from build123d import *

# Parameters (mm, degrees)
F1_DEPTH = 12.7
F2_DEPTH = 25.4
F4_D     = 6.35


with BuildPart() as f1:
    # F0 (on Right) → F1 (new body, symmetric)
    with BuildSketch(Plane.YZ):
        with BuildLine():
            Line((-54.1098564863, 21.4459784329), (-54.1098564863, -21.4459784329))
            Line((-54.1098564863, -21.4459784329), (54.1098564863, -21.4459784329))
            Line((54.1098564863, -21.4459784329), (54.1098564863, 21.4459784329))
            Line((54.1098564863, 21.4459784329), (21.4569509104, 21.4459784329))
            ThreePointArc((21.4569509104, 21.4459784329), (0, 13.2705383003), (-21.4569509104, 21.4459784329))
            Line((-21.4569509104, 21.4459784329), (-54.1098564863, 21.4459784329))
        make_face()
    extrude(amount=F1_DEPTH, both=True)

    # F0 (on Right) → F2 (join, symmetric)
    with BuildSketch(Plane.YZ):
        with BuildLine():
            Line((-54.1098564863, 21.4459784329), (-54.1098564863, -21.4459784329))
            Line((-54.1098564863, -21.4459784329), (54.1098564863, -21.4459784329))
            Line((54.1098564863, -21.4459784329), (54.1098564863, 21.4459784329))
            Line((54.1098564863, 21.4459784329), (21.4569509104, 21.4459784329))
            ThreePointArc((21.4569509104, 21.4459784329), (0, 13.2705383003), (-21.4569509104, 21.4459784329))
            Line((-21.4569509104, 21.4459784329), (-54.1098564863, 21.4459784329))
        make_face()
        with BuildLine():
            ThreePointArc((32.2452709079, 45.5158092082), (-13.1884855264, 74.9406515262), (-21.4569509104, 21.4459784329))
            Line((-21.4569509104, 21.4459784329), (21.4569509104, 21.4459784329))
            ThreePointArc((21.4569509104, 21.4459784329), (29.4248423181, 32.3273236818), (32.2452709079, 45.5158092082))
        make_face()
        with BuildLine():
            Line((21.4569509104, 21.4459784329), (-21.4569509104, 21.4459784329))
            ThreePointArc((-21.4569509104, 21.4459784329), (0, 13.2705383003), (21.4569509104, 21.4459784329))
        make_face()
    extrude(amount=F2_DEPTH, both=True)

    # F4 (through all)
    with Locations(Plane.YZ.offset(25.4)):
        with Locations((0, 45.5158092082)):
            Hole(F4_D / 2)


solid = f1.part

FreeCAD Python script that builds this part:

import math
import FreeCAD as App
import Part
import Sketcher

V = App.Vector
Q = App.Units.Quantity

doc = App.newDocument("Part")
params = doc.addObject("Spreadsheet::Sheet", "Params")
for row, (alias, value) in enumerate([
    ("pad1_length", "1 in"),
    ("pad2_length", "2 in"),
    ("sketch3_diameter", "0.25 in"),
    ("hole_diameter", "0.25 in"),
], start=1):
    params.set(f"A{row}", alias)
    params.set(f"B{row}", "=" + value)
    params.setAlias(f"B{row}", alias)

body = doc.addObject("PartDesign::Body", "Body")

# Sketch on YZ plane
sketch1 = body.newObject("Sketcher::SketchObject", "Sketch")
sketch1.AttachmentSupport = (doc.getObject("YZ_Plane"), [""])
sketch1.MapMode = "FlatFace"
sketch1.addGeometry([
    Part.LineSegment(V(-54.109856, 21.445978, 0), V(-54.109856, -21.445978, 0)),  # 0
    Part.LineSegment(V(-54.109856, -21.445978, 0), V(54.109856, -21.445978, 0)),  # 1
    Part.LineSegment(V(54.109856, -21.445978, 0), V(54.109856, 21.445978, 0)),  # 2
    Part.LineSegment(V(54.109856, 21.445978, 0), V(21.456951, 21.445978, 0)),  # 3
    Part.ArcOfCircle(Part.Circle(V(0, 45.515809, 0), V(0, 0, 1), 32.245271), math.radians(-131.715275), math.radians(-48.284725)),  # 4
    Part.LineSegment(V(-21.456951, 21.445978, 0), V(-54.109856, 21.445978, 0)),  # 5
], False)
sketch1.addConstraint([
    Sketcher.Constraint("Coincident", 0, 2, 1, 1),
    Sketcher.Constraint("Coincident", 1, 2, 2, 1),
    Sketcher.Constraint("Coincident", 2, 2, 3, 1),
    Sketcher.Constraint("Coincident", 3, 2, 4, 2),
    Sketcher.Constraint("Coincident", 4, 1, 5, 1),
    Sketcher.Constraint("Coincident", 5, 2, 0, 1),
    Sketcher.Constraint("Vertical", 0),
    Sketcher.Constraint("Horizontal", 1),
    Sketcher.Constraint("Vertical", 2),
    Sketcher.Constraint("Horizontal", 3),
    Sketcher.Constraint("Horizontal", 5),
    Sketcher.Constraint("Symmetric", 0, 2, 2, 2, -1, 1),
    Sketcher.Constraint("Symmetric", 3, 2, 4, 1, -2),
    Sketcher.Constraint("Radius", 4, 32.245271),
    Sketcher.Constraint("DistanceX", 4, 1, 3, 2, 42.913902),
    Sketcher.Constraint("DistanceX", 1, 1, 1, 2, 108.219713),
    Sketcher.Constraint("DistanceY", 0, 2, 0, 1, 42.891957),
])
pad1 = body.newObject("PartDesign::Pad", "Pad")
pad1.Profile = sketch1
pad1.setExpression("Length", "Params.pad1_length")
pad1.Midplane = True

# Sketch on YZ plane
sketch2 = body.newObject("Sketcher::SketchObject", "Sketch001")
sketch2.AttachmentSupport = (doc.getObject("YZ_Plane"), [""])
sketch2.MapMode = "FlatFace"
sketch2.addGeometry([
    Part.LineSegment(V(-54.109856, 21.445978, 0), V(-54.109856, -21.445978, 0)),  # 0
    Part.LineSegment(V(-54.109856, -21.445978, 0), V(54.109856, -21.445978, 0)),  # 1
    Part.LineSegment(V(54.109856, -21.445978, 0), V(54.109856, 21.445978, 0)),  # 2
    Part.LineSegment(V(54.109856, 21.445978, 0), V(21.456951, 21.445978, 0)),  # 3
    Part.ArcOfCircle(Part.Circle(V(0, 45.515809, 0), V(0, 0, 1), 32.245271), math.radians(-48.284725), math.radians(0)),  # 4
    Part.ArcOfCircle(Part.Circle(V(0, 45.515809, 0), V(0, 0, 1), 32.245271), math.radians(0), math.radians(228.284725)),  # 5
    Part.LineSegment(V(-21.456951, 21.445978, 0), V(-54.109856, 21.445978, 0)),  # 6
], False)
sketch2.addConstraint([
    Sketcher.Constraint("Coincident", 0, 2, 1, 1),
    Sketcher.Constraint("Coincident", 1, 2, 2, 1),
    Sketcher.Constraint("Coincident", 2, 2, 3, 1),
    Sketcher.Constraint("Coincident", 3, 2, 4, 1),
    Sketcher.Constraint("Tangent", 4, 2, 5, 1),
    Sketcher.Constraint("Coincident", 5, 2, 6, 1),
    Sketcher.Constraint("Coincident", 6, 2, 0, 1),
    Sketcher.Constraint("Vertical", 0),
    Sketcher.Constraint("Horizontal", 1),
    Sketcher.Constraint("Vertical", 2),
    Sketcher.Constraint("Horizontal", 3),
    Sketcher.Constraint("Horizontal", 6),
    Sketcher.Constraint("Equal", 4, 5),
    Sketcher.Constraint("Symmetric", 0, 2, 2, 2, -1, 1),
    Sketcher.Constraint("Symmetric", 3, 2, 5, 2, -2),
    Sketcher.Constraint("Horizontal", 5, 3, 4, 2),
    Sketcher.Constraint("Radius", 4, 32.245271),
    Sketcher.Constraint("DistanceX", 5, 2, 3, 2, 42.913902),
    Sketcher.Constraint("DistanceX", 1, 1, 1, 2, 108.219713),
    Sketcher.Constraint("DistanceY", 0, 2, 0, 1, 42.891957),
])
pad2 = body.newObject("PartDesign::Pad", "Pad001")
pad2.Profile = sketch2
pad2.setExpression("Length", "Params.pad2_length")
pad2.Midplane = True

# Sketch on YZ plane
sketch3 = body.newObject("Sketcher::SketchObject", "Sketch002")
sketch3.AttachmentSupport = (doc.getObject("YZ_Plane"), [""])
sketch3.MapMode = "FlatFace"
sketch3.AttachmentOffset = App.Placement(V(0, 0, 1 * 25.4), App.Rotation())
sketch3.addGeometry(Part.Circle(V(0, 45.515809, 0), V(0, 0, 1), 3.175), False)
sketch3.addConstraint([
    Sketcher.Constraint("PointOnObject", 0, 3, -2),
    Sketcher.Constraint("Diameter", 0, Q("0.25 in")),
    Sketcher.Constraint("DistanceY", -1, 1, 0, 3, 45.515809),
])
sketch3.setExpression("Constraints[1]", "Params.sketch3_diameter")
doc.recompute()
hole = body.newObject("PartDesign::Hole", "Hole")
hole.Profile = sketch3
hole.ThreadType = "None"
hole.setExpression("Diameter", "Params.hole_diameter")
hole.DepthType = "ThroughAll"

doc.recompute()
